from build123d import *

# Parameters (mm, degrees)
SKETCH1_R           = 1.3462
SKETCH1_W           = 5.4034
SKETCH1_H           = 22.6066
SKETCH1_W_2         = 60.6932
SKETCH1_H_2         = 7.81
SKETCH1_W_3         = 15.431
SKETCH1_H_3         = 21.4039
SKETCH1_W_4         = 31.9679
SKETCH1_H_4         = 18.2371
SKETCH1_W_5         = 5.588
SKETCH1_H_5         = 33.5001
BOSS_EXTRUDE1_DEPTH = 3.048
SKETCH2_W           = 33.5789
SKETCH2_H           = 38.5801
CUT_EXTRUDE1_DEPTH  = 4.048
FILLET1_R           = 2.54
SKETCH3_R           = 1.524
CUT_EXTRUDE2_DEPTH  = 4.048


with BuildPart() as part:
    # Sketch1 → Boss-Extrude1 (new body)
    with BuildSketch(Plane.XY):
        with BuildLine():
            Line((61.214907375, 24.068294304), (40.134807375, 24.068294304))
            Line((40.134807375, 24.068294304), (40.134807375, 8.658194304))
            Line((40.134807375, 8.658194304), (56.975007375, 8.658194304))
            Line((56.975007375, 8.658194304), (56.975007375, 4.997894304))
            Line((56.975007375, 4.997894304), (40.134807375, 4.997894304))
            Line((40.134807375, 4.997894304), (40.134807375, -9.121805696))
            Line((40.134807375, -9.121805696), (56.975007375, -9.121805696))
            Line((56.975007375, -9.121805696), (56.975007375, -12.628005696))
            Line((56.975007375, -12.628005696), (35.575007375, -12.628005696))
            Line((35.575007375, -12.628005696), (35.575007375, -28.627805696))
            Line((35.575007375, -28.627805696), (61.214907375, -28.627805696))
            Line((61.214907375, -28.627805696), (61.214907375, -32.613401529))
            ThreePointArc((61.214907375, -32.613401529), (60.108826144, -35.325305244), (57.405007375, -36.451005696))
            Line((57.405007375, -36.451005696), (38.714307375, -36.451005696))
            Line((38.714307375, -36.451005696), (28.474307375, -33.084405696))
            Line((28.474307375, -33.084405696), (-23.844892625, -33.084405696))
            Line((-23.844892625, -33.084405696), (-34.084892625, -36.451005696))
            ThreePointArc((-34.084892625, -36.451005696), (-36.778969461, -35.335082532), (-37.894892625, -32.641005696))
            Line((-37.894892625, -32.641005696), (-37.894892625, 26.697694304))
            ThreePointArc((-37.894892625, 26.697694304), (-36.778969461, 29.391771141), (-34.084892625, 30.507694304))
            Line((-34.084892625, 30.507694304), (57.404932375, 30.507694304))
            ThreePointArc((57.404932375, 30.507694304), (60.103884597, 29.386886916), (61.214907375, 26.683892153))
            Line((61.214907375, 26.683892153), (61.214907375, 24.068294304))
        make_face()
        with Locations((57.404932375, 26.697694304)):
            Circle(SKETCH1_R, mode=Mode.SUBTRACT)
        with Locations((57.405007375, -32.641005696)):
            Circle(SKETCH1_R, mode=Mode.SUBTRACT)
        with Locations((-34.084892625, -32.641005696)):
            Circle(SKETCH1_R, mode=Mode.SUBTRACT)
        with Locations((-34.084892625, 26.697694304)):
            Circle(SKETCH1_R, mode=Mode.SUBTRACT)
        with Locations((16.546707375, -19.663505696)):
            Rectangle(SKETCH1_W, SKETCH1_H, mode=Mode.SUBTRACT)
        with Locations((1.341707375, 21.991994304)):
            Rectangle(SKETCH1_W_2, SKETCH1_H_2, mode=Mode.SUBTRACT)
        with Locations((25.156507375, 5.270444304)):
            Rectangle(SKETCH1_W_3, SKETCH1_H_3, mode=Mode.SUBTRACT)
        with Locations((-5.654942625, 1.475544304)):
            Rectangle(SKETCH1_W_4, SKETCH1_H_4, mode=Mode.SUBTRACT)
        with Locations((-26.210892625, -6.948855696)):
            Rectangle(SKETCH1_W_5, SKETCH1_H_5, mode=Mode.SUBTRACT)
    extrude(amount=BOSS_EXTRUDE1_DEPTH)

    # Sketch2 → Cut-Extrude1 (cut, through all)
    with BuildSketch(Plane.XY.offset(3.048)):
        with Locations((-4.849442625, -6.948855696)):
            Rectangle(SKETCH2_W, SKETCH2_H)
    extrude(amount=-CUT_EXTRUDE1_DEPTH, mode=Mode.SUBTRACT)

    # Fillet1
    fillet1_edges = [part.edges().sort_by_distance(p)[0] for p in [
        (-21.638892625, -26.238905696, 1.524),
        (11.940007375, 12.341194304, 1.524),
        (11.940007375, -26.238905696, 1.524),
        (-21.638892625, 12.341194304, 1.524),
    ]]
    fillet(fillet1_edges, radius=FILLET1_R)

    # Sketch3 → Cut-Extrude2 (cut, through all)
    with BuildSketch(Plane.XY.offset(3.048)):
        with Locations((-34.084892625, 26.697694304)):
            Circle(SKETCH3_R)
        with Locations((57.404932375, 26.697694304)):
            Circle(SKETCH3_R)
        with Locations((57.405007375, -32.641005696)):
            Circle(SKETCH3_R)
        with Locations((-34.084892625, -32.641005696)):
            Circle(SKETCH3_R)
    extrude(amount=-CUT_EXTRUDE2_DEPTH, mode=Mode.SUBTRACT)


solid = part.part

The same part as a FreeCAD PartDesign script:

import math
import FreeCAD as App
import Part
import Sketcher
Q = App.Units.Quantity


def edges_at(feature, points):
    """Names of the edges that pass closest to the given points."""
    edges = feature.Shape.Edges
    near = lambda p: min(range(len(edges)), key=lambda i: edges[i].distToShape(Part.Vertex(*p))[0])
    return sorted({f"Edge{near(p) + 1}" for p in points})

doc = App.newDocument("Part")
body = doc.addObject("PartDesign::Body", "Body")

sketch1 = body.newObject("Sketcher::SketchObject", "Sketch")
sketch1.AttachmentSupport = (doc.getObject("XY_Plane"), [""])
sketch1.MapMode = "FlatFace"
sketch1.addGeometry([
    Part.LineSegment(App.Vector(40.134807, 24.068294, 0), App.Vector(61.214907, 24.068294, 0)),
    Part.LineSegment(App.Vector(61.214907, 24.068294, 0), App.Vector(61.214907, 26.683892, 0)),
    Part.ArcOfCircle(Part.Circle(App.Vector(57.404932, 26.697694, 0), App.Vector(0, 0, 1), 3.81), math.radians(-0.207561), math.radians(90)),
    Part.LineSegment(App.Vector(57.404932, 30.507694, 0), App.Vector(-34.084893, 30.507694, 0)),
    Part.ArcOfCircle(Part.Circle(App.Vector(-34.084893, 26.697694, 0), App.Vector(0, 0, 1), 3.81), math.radians(90), math.radians(180)),
    Part.LineSegment(App.Vector(-37.894893, 26.697694, 0), App.Vector(-37.894893, -32.641006, 0)),
    Part.ArcOfCircle(Part.Circle(App.Vector(-34.084893, -32.641006, 0), App.Vector(0, 0, 1), 3.81), math.radians(-180), math.radians(-90)),
    Part.LineSegment(App.Vector(-34.084893, -36.451006, 0), App.Vector(-23.844893, -33.084406, 0)),
    Part.LineSegment(App.Vector(-23.844893, -33.084406, 0), App.Vector(28.474307, -33.084406, 0)),
    Part.LineSegment(App.Vector(28.474307, -33.084406, 0), App.Vector(38.714307, -36.451006, 0)),
    Part.LineSegment(App.Vector(38.714307, -36.451006, 0), App.Vector(57.405007, -36.451006, 0)),
    Part.ArcOfCircle(Part.Circle(App.Vector(57.405007, -32.641006, 0), App.Vector(0, 0, 1), 3.81), math.radians(-90), math.radians(0.415122)),
    Part.LineSegment(App.Vector(61.214907, -32.613402, 0), App.Vector(61.214907, -28.627806, 0)),
    Part.LineSegment(App.Vector(61.214907, -28.627806, 0), App.Vector(35.575007, -28.627806, 0)),
    Part.LineSegment(App.Vector(35.575007, -28.627806, 0), App.Vector(35.575007, -12.628006, 0)),
    Part.LineSegment(App.Vector(35.575007, -12.628006, 0), App.Vector(56.975007, -12.628006, 0)),
    Part.LineSegment(App.Vector(56.975007, -12.628006, 0), App.Vector(56.975007, -9.121806, 0)),
    Part.LineSegment(App.Vector(56.975007, -9.121806, 0), App.Vector(40.134807, -9.121806, 0)),
    Part.LineSegment(App.Vector(40.134807, -9.121806, 0), App.Vector(40.134807, 4.997894, 0)),
    Part.LineSegment(App.Vector(40.134807, 4.997894, 0), App.Vector(56.975007, 4.997894, 0)),
    Part.LineSegment(App.Vector(56.975007, 4.997894, 0), App.Vector(56.975007, 8.658194, 0)),
    Part.LineSegment(App.Vector(56.975007, 8.658194, 0), App.Vector(40.134807, 8.658194, 0)),
    Part.LineSegment(App.Vector(40.134807, 8.658194, 0), App.Vector(40.134807, 24.068294, 0)),
    Part.Circle(App.Vector(57.405007, -32.641006, 0), App.Vector(0, 0, 1), 1.3462),
    Part.LineSegment(App.Vector(13.845007, -30.966806, 0), App.Vector(13.845007, -8.360206, 0)),
    Part.LineSegment(App.Vector(13.845007, -8.360206, 0), App.Vector(19.248407, -8.360206, 0)),
    Part.LineSegment(App.Vector(19.248407, -8.360206, 0), App.Vector(19.248407, -30.966806, 0)),
    Part.LineSegment(App.Vector(19.248407, -30.966806, 0), App.Vector(13.845007, -30.966806, 0)),
    Part.Circle(App.Vector(-34.084893, -32.641006, 0), App.Vector(0, 0, 1), 1.3462),
    Part.LineSegment(App.Vector(-29.004893, -23.698906, 0), App.Vector(-29.004893, 9.801194, 0)),
    Part.LineSegment(App.Vector(-29.004893, 9.801194, 0), App.Vector(-23.416893, 9.801194, 0)),
    Part.LineSegment(App.Vector(-23.416893, 9.801194, 0), App.Vector(-23.416893, -23.698906, 0)),
    Part.LineSegment(App.Vector(-23.416893, -23.698906, 0), App.Vector(-29.004893, -23.698906, 0)),
    Part.LineSegment(App.Vector(17.441007, -5.431506, 0), App.Vector(17.441007, 15.972394, 0)),
    Part.LineSegment(App.Vector(17.441007, 15.972394, 0), App.Vector(32.872007, 15.972394, 0)),
    Part.LineSegment(App.Vector(32.872007, 15.972394, 0), App.Vector(32.872007, -5.431506, 0)),
    Part.LineSegment(App.Vector(32.872007, -5.431506, 0), App.Vector(17.441007, -5.431506, 0)),
    Part.Circle(App.Vector(57.404932, 26.697694, 0), App.Vector(0, 0, 1), 1.3462),
    Part.LineSegment(App.Vector(-21.638893, -7.643006, 0), App.Vector(-21.638893, 10.594094, 0)),
    Part.LineSegment(App.Vector(-21.638893, 10.594094, 0), App.Vector(10.329007, 10.594094, 0)),
    Part.LineSegment(App.Vector(10.329007, 10.594094, 0), App.Vector(10.329007, -7.643006, 0)),
    Part.LineSegment(App.Vector(10.329007, -7.643006, 0), App.Vector(-21.638893, -7.643006, 0)),
    Part.LineSegment(App.Vector(-29.004893, 18.086994, 0), App.Vector(-29.004893, 25.896994, 0)),
    Part.LineSegment(App.Vector(-29.004893, 25.896994, 0), App.Vector(31.688307, 25.896994, 0)),
    Part.LineSegment(App.Vector(31.688307, 25.896994, 0), App.Vector(31.688307, 18.086994, 0)),
    Part.LineSegment(App.Vector(31.688307, 18.086994, 0), App.Vector(-29.004893, 18.086994, 0)),
    Part.Circle(App.Vector(-34.084893, 26.697694, 0), App.Vector(0, 0, 1), 1.3462),
], False)
sketch1.addConstraint([
    Sketcher.Constraint("Coincident", 0, 2, 1, 1),
    Sketcher.Constraint("Coincident", 1, 2, 2, 1),
    Sketcher.Constraint("Tangent", 2, 2, 3, 1),
    Sketcher.Constraint("Tangent", 3, 2, 4, 1),
    Sketcher.Constraint("Tangent", 4, 2, 5, 1),
    Sketcher.Constraint("Tangent", 5, 2, 6, 1),
    Sketcher.Constraint("Coincident", 6, 2, 7, 1),
    Sketcher.Constraint("Coincident", 7, 2, 8, 1),
    Sketcher.Constraint("Coincident", 8, 2, 9, 1),
    Sketcher.Constraint("Coincident", 9, 2, 10, 1),
    Sketcher.Constraint("Tangent", 10, 2, 11, 1),
    Sketcher.Constraint("Coincident", 11, 2, 12, 1),
    Sketcher.Constraint("Coincident", 12, 2, 13, 1),
    Sketcher.Constraint("Coincident", 13, 2, 14, 1),
    Sketcher.Constraint("Coincident", 14, 2, 15, 1),
    Sketcher.Constraint("Coincident", 15, 2, 16, 1),
    Sketcher.Constraint("Coincident", 16, 2, 17, 1),
    Sketcher.Constraint("Coincident", 17, 2, 18, 1),
    Sketcher.Constraint("Coincident", 18, 2, 19, 1),
    Sketcher.Constraint("Coincident", 19, 2, 20, 1),
    Sketcher.Constraint("Coincident", 20, 2, 21, 1),
    Sketcher.Constraint("Coincident", 21, 2, 22, 1),
    Sketcher.Constraint("Coincident", 22, 2, 0, 1),
    Sketcher.Constraint("Coincident", 24, 2, 25, 1),
    Sketcher.Constraint("Coincident", 25, 2, 26, 1),
    Sketcher.Constraint("Coincident", 26, 2, 27, 1),
    Sketcher.Constraint("Coincident", 27, 2, 24, 1),
    Sketcher.Constraint("Coincident", 29, 2, 30, 1),
    Sketcher.Constraint("Coincident", 30, 2, 31, 1),
    Sketcher.Constraint("Coincident", 31, 2, 32, 1),
    Sketcher.Constraint("Coincident", 32, 2, 29, 1),
    Sketcher.Constraint("Coincident", 33, 2, 34, 1),
    Sketcher.Constraint("Coincident", 34, 2, 35, 1),
    Sketcher.Constraint("Coincident", 35, 2, 36, 1),
    Sketcher.Constraint("Coincident", 36, 2, 33, 1),
    Sketcher.Constraint("Coincident", 38, 2, 39, 1),
    Sketcher.Constraint("Coincident", 39, 2, 40, 1),
    Sketcher.Constraint("Coincident", 40, 2, 41, 1),
    Sketcher.Constraint("Coincident", 41, 2, 38, 1),
    Sketcher.Constraint("Coincident", 42, 2, 43, 1),
    Sketcher.Constraint("Coincident", 43, 2, 44, 1),
    Sketcher.Constraint("Coincident", 44, 2, 45, 1),
    Sketcher.Constraint("Coincident", 45, 2, 42, 1),
    Sketcher.Constraint("Horizontal", 0),
    Sketcher.Constraint("Vertical", 1),
    Sketcher.Constraint("Horizontal", 3),
    Sketcher.Constraint("Vertical", 5),
    Sketcher.Constraint("Horizontal", 8),
    Sketcher.Constraint("Horizontal", 10),
    Sketcher.Constraint("Vertical", 12),
    Sketcher.Constraint("Horizontal", 13),
    Sketcher.Constraint("Vertical", 14),
    Sketcher.Constraint("Horizontal", 15),
    Sketcher.Constraint("Vertical", 16),
    Sketcher.Constraint("Horizontal", 17),
    Sketcher.Constraint("Vertical", 18),
    Sketcher.Constraint("Horizontal", 19),
    Sketcher.Constraint("Vertical", 20),
    Sketcher.Constraint("Horizontal", 21),
    Sketcher.Constraint("Vertical", 22),
    Sketcher.Constraint("Vertical", 24),
    Sketcher.Constraint("Horizontal", 25),
    Sketcher.Constraint("Vertical", 26),
    Sketcher.Constraint("Horizontal", 27),
    Sketcher.Constraint("Vertical", 29),
    Sketcher.Constraint("Horizontal", 30),
    Sketcher.Constraint("Vertical", 31),
    Sketcher.Constraint("Horizontal", 32),
    Sketcher.Constraint("Vertical", 33),
    Sketcher.Constraint("Horizontal", 34),
    Sketcher.Constraint("Vertical", 35),
    Sketcher.Constraint("Horizontal", 36),
    Sketcher.Constraint("Vertical", 38),
    Sketcher.Constraint("Horizontal", 39),
    Sketcher.Constraint("Vertical", 40),
    Sketcher.Constraint("Horizontal", 41),
    Sketcher.Constraint("Vertical", 42),
    Sketcher.Constraint("Horizontal", 43),
    Sketcher.Constraint("Vertical", 44),
    Sketcher.Constraint("Horizontal", 45),
    Sketcher.Constraint("Coincident", 23, 3, 11, 3),
    Sketcher.Constraint("Coincident", 28, 3, 6, 3),
    Sketcher.Constraint("Coincident", 37, 3, 2, 3),
    Sketcher.Constraint("Coincident", 46, 3, 4, 3),
    Sketcher.Constraint("Equal", 2, 4),
    Sketcher.Constraint("Equal", 4, 6),
    Sketcher.Constraint("Equal", 6, 11),
    Sketcher.Constraint("Equal", 23, 28),
    Sketcher.Constraint("Equal", 28, 37),
    Sketcher.Constraint("Equal", 37, 46),
    Sketcher.Constraint("Horizontal", 6, 3, 11, 3),
    Sketcher.Constraint("Vertical", 3, 2, 6, 2),
    Sketcher.Constraint("Vertical", 1, 2, 11, 2),
    Sketcher.Constraint("Vertical", 16, 2, 19, 2),
    Sketcher.Constraint("Vertical", 18, 2, 21, 2),
    Sketcher.Constraint("Vertical", 32, 2, 42, 2),
    Sketcher.Constraint("Equal", 7, 9),
    Sketcher.Constraint("Radius", 2, Q("0.15 in")),
    Sketcher.Constraint("Diameter", 23, Q("0.106 in")),
    Sketcher.Constraint("DistanceX", 30, 1, 30, 2, Q("0.22 in")),
    Sketcher.Constraint("DistanceY", 16, 2, 20, 2, Q("0.7 in")),
    Sketcher.Constraint("DistanceX", 46, 3, 29, 2, Q("0.2 in")),
    Sketcher.Constraint("DistanceX", 17, 2, 17, 1, Q("0.663 in")),
    Sketcher.Constraint("DistanceX", 30, 2, 38, 2, Q("0.07 in")),
    Sketcher.Constraint("DistanceX", 39, 2, 33, 2, Q("0.28 in")),
    Sketcher.Constraint("DistanceX", 8, 2, 11, 2, Q("1.289 in")),
    Sketcher.Constraint("DistanceY", 11, 3, 12, 2, Q("0.158 in")),
    Sketcher.Constraint("DistanceY", 38, 2, 46, 3, Q("0.634 in")),
    Sketcher.Constraint("DistanceX", 0, 1, 0, 2, Q("21.0801 mm")),
    Sketcher.Constraint("DistanceX", 8, 1, 8, 2, Q("52.3192 mm")),
    Sketcher.Constraint("DistanceX", 10, 1, 10, 2, Q("18.6907 mm")),
    Sketcher.Constraint("DistanceX", 13, 2, 13, 1, Q("25.6399 mm")),
    Sketcher.Constraint("DistanceX", 25, 1, 25, 2, Q("5.4034 mm")),
    Sketcher.Constraint("DistanceX", 34, 1, 34, 2, Q("15.431 mm")),
    Sketcher.Constraint("DistanceX", 39, 1, 39, 2, Q("31.9679 mm")),
    Sketcher.Constraint("DistanceX", 43, 1, 43, 2, Q("60.6932 mm")),
    Sketcher.Constraint("DistanceY", 5, 2, 5, 1, Q("59.3387 mm")),
    Sketcher.Constraint("DistanceY", 14, 1, 14, 2, Q("15.9998 mm")),
    Sketcher.Constraint("DistanceY", 16, 1, 16, 2, Q("3.5062 mm")),
    Sketcher.Constraint("DistanceY", 18, 1, 18, 2, Q("14.1197 mm")),
    Sketcher.Constraint("DistanceY", 22, 1, 22, 2, Q("15.4101 mm")),
    Sketcher.Constraint("DistanceY", 24, 1, 24, 2, Q("22.6066 mm")),
    Sketcher.Constraint("DistanceY", 29, 1, 29, 2, Q("33.5001 mm")),
    Sketcher.Constraint("DistanceY", 33, 1, 33, 2, Q("21.4039 mm")),
    Sketcher.Constraint("DistanceY", 38, 1, 38, 2, Q("18.2371 mm")),
    Sketcher.Constraint("DistanceY", 42, 1, 42, 2, Q("7.81 mm")),
    Sketcher.Constraint("DistanceY", 11, 2, -1, 1, Q("32.613402 mm")),
    Sketcher.Constraint("DistanceY", 7, 2, 6, 3, Q("0.4434 mm")),
    Sketcher.Constraint("DistanceX", 24, 2, 14, 2, Q("21.73 mm")),
    Sketcher.Constraint("DistanceY", 14, 2, 24, 2, Q("4.2678 mm")),
    Sketcher.Constraint("DistanceY", 29, 2, 46, 3, Q("16.8965 mm")),
    Sketcher.Constraint("DistanceY", 21, 2, 33, 2, Q("7.3142 mm")),
    Sketcher.Constraint("DistanceY", 42, 2, 46, 3, Q("0.8007 mm")),
    Sketcher.Constraint("DistanceX", 3, 2, 3, 1, Q("91.489825 mm")),
    Sketcher.Constraint("DistanceY", 1, 1, 1, 2, Q("2.615598 mm")),
    Sketcher.Constraint("DistanceX", -1, 1, 2, 3, Q("57.404932 mm")),
])
pad1 = body.newObject("PartDesign::Pad", "Pad")
pad1.Profile = sketch1
pad1.Length = Q("0.12 in")

sketch2 = body.newObject("Sketcher::SketchObject", "Sketch001")
sketch2.AttachmentSupport = (doc.getObject("XY_Plane"), [""])
sketch2.MapMode = "FlatFace"
sketch2.AttachmentOffset = App.Placement(App.Vector(0, 0, 0.12 * 25.4), App.Rotation())
sketch2.addGeometry([
    Part.LineSegment(App.Vector(-22, 12, 0), App.Vector(-22, -26, 0)),
    Part.LineSegment(App.Vector(-22, -26, 0), App.Vector(12, -26, 0)),
    Part.LineSegment(App.Vector(12, -26, 0), App.Vector(12, 12, 0)),
    Part.LineSegment(App.Vector(12, 12, 0), App.Vector(-22, 12, 0)),
], False)
sketch2.addConstraint([
    Sketcher.Constraint("Coincident", 0, 2, 1, 1),
    Sketcher.Constraint("Coincident", 1, 2, 2, 1),
    Sketcher.Constraint("Coincident", 2, 2, 3, 1),
    Sketcher.Constraint("Coincident", 3, 2, 0, 1),
    Sketcher.Constraint("Vertical", 0),
    Sketcher.Constraint("Horizontal", 1),
    Sketcher.Constraint("Vertical", 2),
    Sketcher.Constraint("Horizontal", 3),
    Sketcher.Constraint("DistanceX", 1, 1, 1, 2, Q("33.5789 mm")),
    Sketcher.Constraint("DistanceY", 0, 2, 0, 1, Q("38.5801 mm")),
    Sketcher.Constraint("DistanceX", 0, 2, -1, 1, Q("21.638893 mm")),
    Sketcher.Constraint("DistanceY", 0, 2, -1, 1, Q("26.238906 mm")),
])
pocket1 = body.newObject("PartDesign::Pocket", "Pocket")
pocket1.Profile = sketch2
pocket1.Type = "ThroughAll"
doc.recompute()

fillet = body.newObject("PartDesign::Fillet", "Fillet")
fillet.Base = (pocket1, edges_at(pocket1, [
    (-21.639, -26.239, 1.524),
    (11.94, 12.341, 1.524),
    (11.94, -26.239, 1.524),
    (-21.639, 12.341, 1.524),
]))
fillet.Radius = Q("0.1 in")

sketch3 = body.newObject("Sketcher::SketchObject", "Sketch002")
sketch3.AttachmentSupport = (doc.getObject("XY_Plane"), [""])
sketch3.MapMode = "FlatFace"
sketch3.AttachmentOffset = App.Placement(App.Vector(0, 0, 0.12 * 25.4), App.Rotation())
sketch3.addGeometry([
    Part.Circle(App.Vector(-34.1, 26.7, 0), App.Vector(0, 0, 1), 1.5),
    Part.Circle(App.Vector(57.4, 26.7, 0), App.Vector(0, 0, 1), 1.5),
    Part.Circle(App.Vector(57.4, -32.6, 0), App.Vector(0, 0, 1), 1.5),
    Part.Circle(App.Vector(-34.1, -32.6, 0), App.Vector(0, 0, 1), 1.5),
], False)
sketch3.addConstraint([
    Sketcher.Constraint("Equal", 0, 1),
    Sketcher.Constraint("Equal", 1, 2),
    Sketcher.Constraint("Equal", 2, 3),
    Sketcher.Constraint("Horizontal", 0, 3, 1, 3),
    Sketcher.Constraint("Horizontal", 2, 3, 3, 3),
    Sketcher.Constraint("Vertical", 0, 3, 3, 3),
    Sketcher.Constraint("Diameter", 0, Q("0.12 in")),
    Sketcher.Constraint("DistanceY", 2, 3, 1, 3, Q("59.3387 mm")),
    Sketcher.Constraint("DistanceX", 0, 3, 2, 3, Q("91.4899 mm")),
    Sketcher.Constraint("DistanceX", 0, 3, -1, 1, Q("34.084893 mm")),
    Sketcher.Constraint("DistanceY", -1, 1, 0, 3, Q("26.697694 mm")),
    Sketcher.Constraint("DistanceX", -1, 1, 1, 3, Q("57.404932 mm")),
])
pocket2 = body.newObject("PartDesign::Pocket", "Pocket001")
pocket2.Profile = sketch3
pocket2.Type = "ThroughAll"

doc.recompute()
